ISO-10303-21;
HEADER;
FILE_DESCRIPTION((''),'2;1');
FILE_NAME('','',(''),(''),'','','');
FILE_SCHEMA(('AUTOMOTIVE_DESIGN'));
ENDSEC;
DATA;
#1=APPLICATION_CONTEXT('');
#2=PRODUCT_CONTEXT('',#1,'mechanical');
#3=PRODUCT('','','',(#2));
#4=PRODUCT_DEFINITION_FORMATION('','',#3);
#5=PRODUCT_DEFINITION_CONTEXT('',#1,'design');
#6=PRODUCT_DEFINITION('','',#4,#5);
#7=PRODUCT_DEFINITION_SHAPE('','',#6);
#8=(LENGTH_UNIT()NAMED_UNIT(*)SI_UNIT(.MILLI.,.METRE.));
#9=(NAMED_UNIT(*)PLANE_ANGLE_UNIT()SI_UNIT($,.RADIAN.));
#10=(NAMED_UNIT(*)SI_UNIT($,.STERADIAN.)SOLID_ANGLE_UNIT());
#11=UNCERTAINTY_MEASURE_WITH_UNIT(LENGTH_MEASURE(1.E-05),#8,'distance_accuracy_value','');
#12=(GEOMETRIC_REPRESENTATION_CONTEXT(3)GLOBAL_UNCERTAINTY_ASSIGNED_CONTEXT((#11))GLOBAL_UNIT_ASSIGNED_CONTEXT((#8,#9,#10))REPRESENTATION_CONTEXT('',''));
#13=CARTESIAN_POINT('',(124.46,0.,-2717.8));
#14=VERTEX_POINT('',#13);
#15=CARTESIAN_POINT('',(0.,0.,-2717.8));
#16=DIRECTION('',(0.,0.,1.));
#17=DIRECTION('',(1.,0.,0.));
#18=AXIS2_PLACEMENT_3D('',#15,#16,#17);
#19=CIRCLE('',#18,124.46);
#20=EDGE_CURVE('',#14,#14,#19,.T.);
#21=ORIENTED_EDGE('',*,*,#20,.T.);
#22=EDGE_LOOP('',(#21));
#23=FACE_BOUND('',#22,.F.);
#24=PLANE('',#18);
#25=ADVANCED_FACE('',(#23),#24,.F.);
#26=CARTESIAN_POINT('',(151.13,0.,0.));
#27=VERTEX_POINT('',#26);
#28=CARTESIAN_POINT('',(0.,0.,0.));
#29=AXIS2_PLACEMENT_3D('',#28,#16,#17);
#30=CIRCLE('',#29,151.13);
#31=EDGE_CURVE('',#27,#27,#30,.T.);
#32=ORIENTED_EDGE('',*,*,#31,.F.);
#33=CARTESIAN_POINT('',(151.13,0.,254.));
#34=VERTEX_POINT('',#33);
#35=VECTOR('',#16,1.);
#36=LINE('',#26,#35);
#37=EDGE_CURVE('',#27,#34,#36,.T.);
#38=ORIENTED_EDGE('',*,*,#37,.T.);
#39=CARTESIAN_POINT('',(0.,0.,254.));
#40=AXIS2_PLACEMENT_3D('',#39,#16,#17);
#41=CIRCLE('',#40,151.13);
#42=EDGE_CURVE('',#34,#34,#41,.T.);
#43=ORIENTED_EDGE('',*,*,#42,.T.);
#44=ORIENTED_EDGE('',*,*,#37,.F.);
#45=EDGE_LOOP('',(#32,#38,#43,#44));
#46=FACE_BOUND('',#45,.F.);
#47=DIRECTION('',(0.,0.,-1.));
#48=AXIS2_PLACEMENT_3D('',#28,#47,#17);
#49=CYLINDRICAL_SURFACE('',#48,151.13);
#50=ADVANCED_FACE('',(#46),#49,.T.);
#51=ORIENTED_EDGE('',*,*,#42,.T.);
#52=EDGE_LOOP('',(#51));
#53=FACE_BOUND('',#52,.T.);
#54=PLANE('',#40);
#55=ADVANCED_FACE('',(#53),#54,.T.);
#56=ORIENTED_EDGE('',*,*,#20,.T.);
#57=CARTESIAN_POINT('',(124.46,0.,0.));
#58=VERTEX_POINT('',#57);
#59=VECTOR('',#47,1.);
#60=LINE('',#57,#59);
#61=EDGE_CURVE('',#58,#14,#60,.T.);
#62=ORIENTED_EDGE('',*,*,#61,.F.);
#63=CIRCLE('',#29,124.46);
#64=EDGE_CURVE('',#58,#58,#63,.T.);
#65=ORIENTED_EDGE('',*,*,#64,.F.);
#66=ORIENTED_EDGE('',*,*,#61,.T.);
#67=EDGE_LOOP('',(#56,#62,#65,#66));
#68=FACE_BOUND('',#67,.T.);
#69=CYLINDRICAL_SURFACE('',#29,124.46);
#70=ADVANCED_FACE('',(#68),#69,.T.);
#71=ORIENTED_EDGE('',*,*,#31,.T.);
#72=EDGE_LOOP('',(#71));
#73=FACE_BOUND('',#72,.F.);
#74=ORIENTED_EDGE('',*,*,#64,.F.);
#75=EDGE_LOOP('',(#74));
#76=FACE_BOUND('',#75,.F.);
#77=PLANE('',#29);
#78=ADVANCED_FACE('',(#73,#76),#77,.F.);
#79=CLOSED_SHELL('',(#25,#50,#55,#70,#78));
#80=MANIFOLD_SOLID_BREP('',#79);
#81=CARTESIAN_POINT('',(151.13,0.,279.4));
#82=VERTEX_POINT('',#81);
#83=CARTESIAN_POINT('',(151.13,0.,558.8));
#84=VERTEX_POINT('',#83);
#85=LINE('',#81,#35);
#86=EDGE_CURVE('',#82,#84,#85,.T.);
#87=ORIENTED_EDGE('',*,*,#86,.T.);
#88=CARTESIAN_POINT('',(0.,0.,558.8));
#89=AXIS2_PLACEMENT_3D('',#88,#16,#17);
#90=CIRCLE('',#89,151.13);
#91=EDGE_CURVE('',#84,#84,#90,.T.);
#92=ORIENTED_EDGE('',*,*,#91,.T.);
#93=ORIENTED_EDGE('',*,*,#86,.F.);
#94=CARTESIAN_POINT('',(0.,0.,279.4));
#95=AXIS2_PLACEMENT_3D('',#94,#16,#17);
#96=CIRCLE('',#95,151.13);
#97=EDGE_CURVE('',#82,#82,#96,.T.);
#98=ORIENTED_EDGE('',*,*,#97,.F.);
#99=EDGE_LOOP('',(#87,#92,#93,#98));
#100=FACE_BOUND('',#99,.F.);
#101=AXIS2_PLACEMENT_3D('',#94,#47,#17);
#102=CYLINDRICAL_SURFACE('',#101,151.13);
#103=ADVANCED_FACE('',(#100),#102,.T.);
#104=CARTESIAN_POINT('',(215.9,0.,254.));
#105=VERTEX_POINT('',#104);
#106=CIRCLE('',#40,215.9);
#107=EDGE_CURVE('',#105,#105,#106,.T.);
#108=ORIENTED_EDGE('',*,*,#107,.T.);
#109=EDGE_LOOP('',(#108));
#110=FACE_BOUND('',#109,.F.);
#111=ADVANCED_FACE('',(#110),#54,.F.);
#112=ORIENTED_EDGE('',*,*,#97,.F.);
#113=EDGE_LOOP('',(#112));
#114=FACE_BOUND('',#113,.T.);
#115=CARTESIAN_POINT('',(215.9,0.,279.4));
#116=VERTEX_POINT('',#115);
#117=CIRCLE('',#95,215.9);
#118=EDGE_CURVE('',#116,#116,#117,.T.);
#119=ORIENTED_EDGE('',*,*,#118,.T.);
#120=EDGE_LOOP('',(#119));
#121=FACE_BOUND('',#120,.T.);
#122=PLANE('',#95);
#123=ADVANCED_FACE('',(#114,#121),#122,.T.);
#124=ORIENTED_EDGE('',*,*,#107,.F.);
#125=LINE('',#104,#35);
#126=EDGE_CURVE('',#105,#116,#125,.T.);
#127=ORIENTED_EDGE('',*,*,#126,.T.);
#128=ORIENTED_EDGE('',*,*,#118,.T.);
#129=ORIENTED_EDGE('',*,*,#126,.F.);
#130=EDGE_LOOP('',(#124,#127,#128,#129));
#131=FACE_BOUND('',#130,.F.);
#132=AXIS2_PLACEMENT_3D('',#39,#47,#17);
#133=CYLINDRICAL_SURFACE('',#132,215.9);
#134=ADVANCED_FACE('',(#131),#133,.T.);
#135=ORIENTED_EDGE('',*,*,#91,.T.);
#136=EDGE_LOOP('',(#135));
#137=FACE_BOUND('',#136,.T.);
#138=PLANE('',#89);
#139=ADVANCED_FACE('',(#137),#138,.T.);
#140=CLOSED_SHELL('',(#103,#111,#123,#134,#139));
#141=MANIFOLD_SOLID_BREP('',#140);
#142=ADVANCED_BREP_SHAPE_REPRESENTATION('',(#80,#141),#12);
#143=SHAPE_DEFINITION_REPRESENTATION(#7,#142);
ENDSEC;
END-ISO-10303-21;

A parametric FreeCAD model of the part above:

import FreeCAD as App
import Part
import Sketcher
from FreeCAD import Vector
Q = App.Units.Quantity

doc = App.newDocument("Part")
body = doc.addObject("PartDesign::Body", "Body")

sketch1 = doc.addObject("Sketcher::SketchObject", "Sketch")
body.addObject(sketch1)
sketch1.AttachmentSupport = (doc.XY_Plane, [""])
sketch1.MapMode = "FlatFace"
sketch1.addGeometry(Part.Circle(Vector(0, 0, 0), Vector(0, 0, 1), 124), False)
sketch1.addConstraint(Sketcher.Constraint("Coincident", 0, 3, -1, 1))
sketch1.addConstraint(Sketcher.Constraint("Diameter", 0, Q("9.8 in")))
pad1 = doc.addObject("PartDesign::Pad", "Pad")
body.addObject(pad1)
pad1.Profile = sketch1
pad1.Length = Q("107 in")
pad1.Reversed = True

sketch2 = doc.addObject("Sketcher::SketchObject", "Sketch001")
body.addObject(sketch2)
sketch2.AttachmentSupport = (doc.XY_Plane, [""])
sketch2.MapMode = "FlatFace"
sketch2.addGeometry(Part.Circle(Vector(0, 0, 0), Vector(0, 0, 1), 151), False)
sketch2.addConstraint(Sketcher.Constraint("Coincident", 0, 3, -1, 1))
sketch2.addConstraint(Sketcher.Constraint("Diameter", 0, Q("11.9 in")))
pad2 = doc.addObject("PartDesign::Pad", "Pad001")
body.addObject(pad2)
pad2.Profile = sketch2
pad2.Length = Q("10 in")
body2 = doc.addObject("PartDesign::Body", "Body001")

sketch3 = doc.addObject("Sketcher::SketchObject", "Sketch002")
body2.addObject(sketch3)
sketch3.AttachmentSupport = (doc.getObject("XY_Plane001"), [""])
sketch3.MapMode = "FlatFace"
sketch3.AttachmentOffset = App.Placement(Vector(0, 0, 10 * 25.4), App.Rotation())
sketch3.addGeometry(Part.Circle(Vector(0, 0, 0), Vector(0, 0, 1), 216), False)
sketch3.addConstraint(Sketcher.Constraint("Coincident", 0, 3, -1, 1))
sketch3.addConstraint(Sketcher.Constraint("Diameter", 0, Q("17 in")))
pad3 = doc.addObject("PartDesign::Pad", "Pad002")
body2.addObject(pad3)
pad3.Profile = sketch3
pad3.Length = Q("1 in")

sketch4 = doc.addObject("Sketcher::SketchObject", "Sketch003")
body2.addObject(sketch4)
sketch4.AttachmentSupport = (doc.getObject("XY_Plane001"), [""])
sketch4.MapMode = "FlatFace"
sketch4.AttachmentOffset = App.Placement(Vector(0, 0, 11 * 25.4), App.Rotation())
sketch4.addGeometry(Part.Circle(Vector(0, 0, 0), Vector(0, 0, 1), 151), False)
sketch4.addConstraint(Sketcher.Constraint("Coincident", 0, 3, -1, 1))
sketch4.addConstraint(Sketcher.Constraint("Diameter", 0, Q("11.9 in")))
pad4 = doc.addObject("PartDesign::Pad", "Pad003")
body2.addObject(pad4)
pad4.Profile = sketch4
pad4.Length = Q("11 in")

doc.recompute()
